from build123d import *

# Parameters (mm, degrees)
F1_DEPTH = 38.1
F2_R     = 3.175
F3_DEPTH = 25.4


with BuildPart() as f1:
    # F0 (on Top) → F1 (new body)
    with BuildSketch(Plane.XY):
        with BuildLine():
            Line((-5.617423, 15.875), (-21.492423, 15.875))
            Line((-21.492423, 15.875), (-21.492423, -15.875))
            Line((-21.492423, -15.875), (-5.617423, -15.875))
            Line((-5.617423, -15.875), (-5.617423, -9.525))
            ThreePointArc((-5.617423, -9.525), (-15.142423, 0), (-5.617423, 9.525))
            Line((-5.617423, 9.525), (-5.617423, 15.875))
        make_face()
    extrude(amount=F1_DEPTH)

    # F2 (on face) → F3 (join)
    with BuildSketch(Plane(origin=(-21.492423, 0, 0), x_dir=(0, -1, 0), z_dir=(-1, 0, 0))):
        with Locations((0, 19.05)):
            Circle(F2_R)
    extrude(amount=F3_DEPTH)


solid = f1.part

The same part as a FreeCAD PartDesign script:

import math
import FreeCAD as App
import Part
import Sketcher
from FreeCAD import Vector
Q = App.Units.Quantity

doc = App.newDocument("Part")
params = doc.addObject("Spreadsheet::Sheet", "Params")
for row, (alias, value) in enumerate([
    ("sketch1_radius", "0.375 in"),
    ("sketch1_width", "0.625 in"),
    ("pad1_length", "1.5 in"),
    ("sketch2_diameter", "0.25 in"),
    ("pad2_length", "1 in"),
], start=1):
    params.set(f"A{row}", alias)
    params.set(f"B{row}", "=" + value)
    params.setAlias(f"B{row}", alias)

body = doc.addObject("PartDesign::Body", "Body")

# Sketch on XY plane
sketch1 = body.newObject("Sketcher::SketchObject", "Sketch")
sketch1.AttachmentSupport = (doc.getObject("XY_Plane"), [""])
sketch1.MapMode = "FlatFace"
sketch1.addGeometry(Part.LineSegment(Vector(-5.617423, 15.875, 0), Vector(-21.492423, 15.875, 0)), False)
sketch1.addGeometry(Part.LineSegment(Vector(-21.492423, 15.875, 0), Vector(-21.492423, -15.875, 0)), False)
sketch1.addGeometry(Part.LineSegment(Vector(-21.492423, -15.875, 0), Vector(-5.617423, -15.875, 0)), False)
sketch1.addGeometry(Part.LineSegment(Vector(-5.617423, -15.875, 0), Vector(-5.617423, -9.525, 0)), False)
sketch1.addGeometry(Part.ArcOfCircle(Part.Circle(Vector(-5.617423, 0, 0), Vector(0, 0, 1), 9.525), math.radians(90), math.radians(270)), False)
sketch1.addGeometry(Part.LineSegment(Vector(-5.617423, 9.525, 0), Vector(-5.617423, 15.875, 0)), False)
sketch1.addConstraint(Sketcher.Constraint("Coincident", 0, 2, 1, 1))
sketch1.addConstraint(Sketcher.Constraint("Coincident", 1, 2, 2, 1))
sketch1.addConstraint(Sketcher.Constraint("Coincident", 2, 2, 3, 1))
sketch1.addConstraint(Sketcher.Constraint("Coincident", 3, 2, 4, 2))
sketch1.addConstraint(Sketcher.Constraint("Coincident", 4, 1, 5, 1))
sketch1.addConstraint(Sketcher.Constraint("Coincident", 5, 2, 0, 1))
sketch1.addConstraint(Sketcher.Constraint("Horizontal", 0))
sketch1.addConstraint(Sketcher.Constraint("Vertical", 1))
sketch1.addConstraint(Sketcher.Constraint("Horizontal", 2))
sketch1.addConstraint(Sketcher.Constraint("Vertical", 3))
sketch1.addConstraint(Sketcher.Constraint("Vertical", 5))
sketch1.addConstraint(Sketcher.Constraint("Symmetric", 3, 2, 4, 1, -1))
sketch1.addConstraint(Sketcher.Constraint("Vertical", 4, 3, 2, 2))
sketch1.addConstraint(Sketcher.Constraint("Equal", 3, 5))
sketch1.addConstraint(Sketcher.Constraint("Radius", 4, Q("0.375 in")))
sketch1.addConstraint(Sketcher.Constraint("DistanceY", 3, 2, 0, 2, Q("1 in")))
sketch1.addConstraint(Sketcher.Constraint("DistanceX", 0, 2, 0, 1, Q("0.625 in")))
sketch1.addConstraint(Sketcher.Constraint("DistanceX", 4, 3, -1, 1, 5.617423))
sketch1.setExpression("Constraints[14]", "Params.sketch1_radius")
sketch1.setExpression("Constraints[16]", "Params.sketch1_width")
pad1 = body.newObject("PartDesign::Pad", "Pad")
pad1.Profile = sketch1
pad1.setExpression("Length", "Params.pad1_length")

# Sketch on YZ plane
sketch2 = body.newObject("Sketcher::SketchObject", "Sketch001")
sketch2.AttachmentSupport = (doc.getObject("YZ_Plane"), [""])
sketch2.MapMode = "FlatFace"
sketch2.AttachmentOffset = App.Placement(Vector(0, 0, -21.492423), App.Rotation())
sketch2.addGeometry(Part.Circle(Vector(0, 19.05, 0), Vector(0, 0, 1), 3.175), False)
sketch2.addConstraint(Sketcher.Constraint("PointOnObject", 0, 3, -2))
sketch2.addConstraint(Sketcher.Constraint("Diameter", 0, Q("0.25 in")))
sketch2.addConstraint(Sketcher.Constraint("DistanceY", -1, 1, 0, 3, Q("0.75 in")))
sketch2.setExpression("Constraints[1]", "Params.sketch2_diameter")
pad2 = body.newObject("PartDesign::Pad", "Pad001")
pad2.Profile = sketch2
pad2.setExpression("Length", "Params.pad2_length")
pad2.Reversed = True

doc.recompute()
